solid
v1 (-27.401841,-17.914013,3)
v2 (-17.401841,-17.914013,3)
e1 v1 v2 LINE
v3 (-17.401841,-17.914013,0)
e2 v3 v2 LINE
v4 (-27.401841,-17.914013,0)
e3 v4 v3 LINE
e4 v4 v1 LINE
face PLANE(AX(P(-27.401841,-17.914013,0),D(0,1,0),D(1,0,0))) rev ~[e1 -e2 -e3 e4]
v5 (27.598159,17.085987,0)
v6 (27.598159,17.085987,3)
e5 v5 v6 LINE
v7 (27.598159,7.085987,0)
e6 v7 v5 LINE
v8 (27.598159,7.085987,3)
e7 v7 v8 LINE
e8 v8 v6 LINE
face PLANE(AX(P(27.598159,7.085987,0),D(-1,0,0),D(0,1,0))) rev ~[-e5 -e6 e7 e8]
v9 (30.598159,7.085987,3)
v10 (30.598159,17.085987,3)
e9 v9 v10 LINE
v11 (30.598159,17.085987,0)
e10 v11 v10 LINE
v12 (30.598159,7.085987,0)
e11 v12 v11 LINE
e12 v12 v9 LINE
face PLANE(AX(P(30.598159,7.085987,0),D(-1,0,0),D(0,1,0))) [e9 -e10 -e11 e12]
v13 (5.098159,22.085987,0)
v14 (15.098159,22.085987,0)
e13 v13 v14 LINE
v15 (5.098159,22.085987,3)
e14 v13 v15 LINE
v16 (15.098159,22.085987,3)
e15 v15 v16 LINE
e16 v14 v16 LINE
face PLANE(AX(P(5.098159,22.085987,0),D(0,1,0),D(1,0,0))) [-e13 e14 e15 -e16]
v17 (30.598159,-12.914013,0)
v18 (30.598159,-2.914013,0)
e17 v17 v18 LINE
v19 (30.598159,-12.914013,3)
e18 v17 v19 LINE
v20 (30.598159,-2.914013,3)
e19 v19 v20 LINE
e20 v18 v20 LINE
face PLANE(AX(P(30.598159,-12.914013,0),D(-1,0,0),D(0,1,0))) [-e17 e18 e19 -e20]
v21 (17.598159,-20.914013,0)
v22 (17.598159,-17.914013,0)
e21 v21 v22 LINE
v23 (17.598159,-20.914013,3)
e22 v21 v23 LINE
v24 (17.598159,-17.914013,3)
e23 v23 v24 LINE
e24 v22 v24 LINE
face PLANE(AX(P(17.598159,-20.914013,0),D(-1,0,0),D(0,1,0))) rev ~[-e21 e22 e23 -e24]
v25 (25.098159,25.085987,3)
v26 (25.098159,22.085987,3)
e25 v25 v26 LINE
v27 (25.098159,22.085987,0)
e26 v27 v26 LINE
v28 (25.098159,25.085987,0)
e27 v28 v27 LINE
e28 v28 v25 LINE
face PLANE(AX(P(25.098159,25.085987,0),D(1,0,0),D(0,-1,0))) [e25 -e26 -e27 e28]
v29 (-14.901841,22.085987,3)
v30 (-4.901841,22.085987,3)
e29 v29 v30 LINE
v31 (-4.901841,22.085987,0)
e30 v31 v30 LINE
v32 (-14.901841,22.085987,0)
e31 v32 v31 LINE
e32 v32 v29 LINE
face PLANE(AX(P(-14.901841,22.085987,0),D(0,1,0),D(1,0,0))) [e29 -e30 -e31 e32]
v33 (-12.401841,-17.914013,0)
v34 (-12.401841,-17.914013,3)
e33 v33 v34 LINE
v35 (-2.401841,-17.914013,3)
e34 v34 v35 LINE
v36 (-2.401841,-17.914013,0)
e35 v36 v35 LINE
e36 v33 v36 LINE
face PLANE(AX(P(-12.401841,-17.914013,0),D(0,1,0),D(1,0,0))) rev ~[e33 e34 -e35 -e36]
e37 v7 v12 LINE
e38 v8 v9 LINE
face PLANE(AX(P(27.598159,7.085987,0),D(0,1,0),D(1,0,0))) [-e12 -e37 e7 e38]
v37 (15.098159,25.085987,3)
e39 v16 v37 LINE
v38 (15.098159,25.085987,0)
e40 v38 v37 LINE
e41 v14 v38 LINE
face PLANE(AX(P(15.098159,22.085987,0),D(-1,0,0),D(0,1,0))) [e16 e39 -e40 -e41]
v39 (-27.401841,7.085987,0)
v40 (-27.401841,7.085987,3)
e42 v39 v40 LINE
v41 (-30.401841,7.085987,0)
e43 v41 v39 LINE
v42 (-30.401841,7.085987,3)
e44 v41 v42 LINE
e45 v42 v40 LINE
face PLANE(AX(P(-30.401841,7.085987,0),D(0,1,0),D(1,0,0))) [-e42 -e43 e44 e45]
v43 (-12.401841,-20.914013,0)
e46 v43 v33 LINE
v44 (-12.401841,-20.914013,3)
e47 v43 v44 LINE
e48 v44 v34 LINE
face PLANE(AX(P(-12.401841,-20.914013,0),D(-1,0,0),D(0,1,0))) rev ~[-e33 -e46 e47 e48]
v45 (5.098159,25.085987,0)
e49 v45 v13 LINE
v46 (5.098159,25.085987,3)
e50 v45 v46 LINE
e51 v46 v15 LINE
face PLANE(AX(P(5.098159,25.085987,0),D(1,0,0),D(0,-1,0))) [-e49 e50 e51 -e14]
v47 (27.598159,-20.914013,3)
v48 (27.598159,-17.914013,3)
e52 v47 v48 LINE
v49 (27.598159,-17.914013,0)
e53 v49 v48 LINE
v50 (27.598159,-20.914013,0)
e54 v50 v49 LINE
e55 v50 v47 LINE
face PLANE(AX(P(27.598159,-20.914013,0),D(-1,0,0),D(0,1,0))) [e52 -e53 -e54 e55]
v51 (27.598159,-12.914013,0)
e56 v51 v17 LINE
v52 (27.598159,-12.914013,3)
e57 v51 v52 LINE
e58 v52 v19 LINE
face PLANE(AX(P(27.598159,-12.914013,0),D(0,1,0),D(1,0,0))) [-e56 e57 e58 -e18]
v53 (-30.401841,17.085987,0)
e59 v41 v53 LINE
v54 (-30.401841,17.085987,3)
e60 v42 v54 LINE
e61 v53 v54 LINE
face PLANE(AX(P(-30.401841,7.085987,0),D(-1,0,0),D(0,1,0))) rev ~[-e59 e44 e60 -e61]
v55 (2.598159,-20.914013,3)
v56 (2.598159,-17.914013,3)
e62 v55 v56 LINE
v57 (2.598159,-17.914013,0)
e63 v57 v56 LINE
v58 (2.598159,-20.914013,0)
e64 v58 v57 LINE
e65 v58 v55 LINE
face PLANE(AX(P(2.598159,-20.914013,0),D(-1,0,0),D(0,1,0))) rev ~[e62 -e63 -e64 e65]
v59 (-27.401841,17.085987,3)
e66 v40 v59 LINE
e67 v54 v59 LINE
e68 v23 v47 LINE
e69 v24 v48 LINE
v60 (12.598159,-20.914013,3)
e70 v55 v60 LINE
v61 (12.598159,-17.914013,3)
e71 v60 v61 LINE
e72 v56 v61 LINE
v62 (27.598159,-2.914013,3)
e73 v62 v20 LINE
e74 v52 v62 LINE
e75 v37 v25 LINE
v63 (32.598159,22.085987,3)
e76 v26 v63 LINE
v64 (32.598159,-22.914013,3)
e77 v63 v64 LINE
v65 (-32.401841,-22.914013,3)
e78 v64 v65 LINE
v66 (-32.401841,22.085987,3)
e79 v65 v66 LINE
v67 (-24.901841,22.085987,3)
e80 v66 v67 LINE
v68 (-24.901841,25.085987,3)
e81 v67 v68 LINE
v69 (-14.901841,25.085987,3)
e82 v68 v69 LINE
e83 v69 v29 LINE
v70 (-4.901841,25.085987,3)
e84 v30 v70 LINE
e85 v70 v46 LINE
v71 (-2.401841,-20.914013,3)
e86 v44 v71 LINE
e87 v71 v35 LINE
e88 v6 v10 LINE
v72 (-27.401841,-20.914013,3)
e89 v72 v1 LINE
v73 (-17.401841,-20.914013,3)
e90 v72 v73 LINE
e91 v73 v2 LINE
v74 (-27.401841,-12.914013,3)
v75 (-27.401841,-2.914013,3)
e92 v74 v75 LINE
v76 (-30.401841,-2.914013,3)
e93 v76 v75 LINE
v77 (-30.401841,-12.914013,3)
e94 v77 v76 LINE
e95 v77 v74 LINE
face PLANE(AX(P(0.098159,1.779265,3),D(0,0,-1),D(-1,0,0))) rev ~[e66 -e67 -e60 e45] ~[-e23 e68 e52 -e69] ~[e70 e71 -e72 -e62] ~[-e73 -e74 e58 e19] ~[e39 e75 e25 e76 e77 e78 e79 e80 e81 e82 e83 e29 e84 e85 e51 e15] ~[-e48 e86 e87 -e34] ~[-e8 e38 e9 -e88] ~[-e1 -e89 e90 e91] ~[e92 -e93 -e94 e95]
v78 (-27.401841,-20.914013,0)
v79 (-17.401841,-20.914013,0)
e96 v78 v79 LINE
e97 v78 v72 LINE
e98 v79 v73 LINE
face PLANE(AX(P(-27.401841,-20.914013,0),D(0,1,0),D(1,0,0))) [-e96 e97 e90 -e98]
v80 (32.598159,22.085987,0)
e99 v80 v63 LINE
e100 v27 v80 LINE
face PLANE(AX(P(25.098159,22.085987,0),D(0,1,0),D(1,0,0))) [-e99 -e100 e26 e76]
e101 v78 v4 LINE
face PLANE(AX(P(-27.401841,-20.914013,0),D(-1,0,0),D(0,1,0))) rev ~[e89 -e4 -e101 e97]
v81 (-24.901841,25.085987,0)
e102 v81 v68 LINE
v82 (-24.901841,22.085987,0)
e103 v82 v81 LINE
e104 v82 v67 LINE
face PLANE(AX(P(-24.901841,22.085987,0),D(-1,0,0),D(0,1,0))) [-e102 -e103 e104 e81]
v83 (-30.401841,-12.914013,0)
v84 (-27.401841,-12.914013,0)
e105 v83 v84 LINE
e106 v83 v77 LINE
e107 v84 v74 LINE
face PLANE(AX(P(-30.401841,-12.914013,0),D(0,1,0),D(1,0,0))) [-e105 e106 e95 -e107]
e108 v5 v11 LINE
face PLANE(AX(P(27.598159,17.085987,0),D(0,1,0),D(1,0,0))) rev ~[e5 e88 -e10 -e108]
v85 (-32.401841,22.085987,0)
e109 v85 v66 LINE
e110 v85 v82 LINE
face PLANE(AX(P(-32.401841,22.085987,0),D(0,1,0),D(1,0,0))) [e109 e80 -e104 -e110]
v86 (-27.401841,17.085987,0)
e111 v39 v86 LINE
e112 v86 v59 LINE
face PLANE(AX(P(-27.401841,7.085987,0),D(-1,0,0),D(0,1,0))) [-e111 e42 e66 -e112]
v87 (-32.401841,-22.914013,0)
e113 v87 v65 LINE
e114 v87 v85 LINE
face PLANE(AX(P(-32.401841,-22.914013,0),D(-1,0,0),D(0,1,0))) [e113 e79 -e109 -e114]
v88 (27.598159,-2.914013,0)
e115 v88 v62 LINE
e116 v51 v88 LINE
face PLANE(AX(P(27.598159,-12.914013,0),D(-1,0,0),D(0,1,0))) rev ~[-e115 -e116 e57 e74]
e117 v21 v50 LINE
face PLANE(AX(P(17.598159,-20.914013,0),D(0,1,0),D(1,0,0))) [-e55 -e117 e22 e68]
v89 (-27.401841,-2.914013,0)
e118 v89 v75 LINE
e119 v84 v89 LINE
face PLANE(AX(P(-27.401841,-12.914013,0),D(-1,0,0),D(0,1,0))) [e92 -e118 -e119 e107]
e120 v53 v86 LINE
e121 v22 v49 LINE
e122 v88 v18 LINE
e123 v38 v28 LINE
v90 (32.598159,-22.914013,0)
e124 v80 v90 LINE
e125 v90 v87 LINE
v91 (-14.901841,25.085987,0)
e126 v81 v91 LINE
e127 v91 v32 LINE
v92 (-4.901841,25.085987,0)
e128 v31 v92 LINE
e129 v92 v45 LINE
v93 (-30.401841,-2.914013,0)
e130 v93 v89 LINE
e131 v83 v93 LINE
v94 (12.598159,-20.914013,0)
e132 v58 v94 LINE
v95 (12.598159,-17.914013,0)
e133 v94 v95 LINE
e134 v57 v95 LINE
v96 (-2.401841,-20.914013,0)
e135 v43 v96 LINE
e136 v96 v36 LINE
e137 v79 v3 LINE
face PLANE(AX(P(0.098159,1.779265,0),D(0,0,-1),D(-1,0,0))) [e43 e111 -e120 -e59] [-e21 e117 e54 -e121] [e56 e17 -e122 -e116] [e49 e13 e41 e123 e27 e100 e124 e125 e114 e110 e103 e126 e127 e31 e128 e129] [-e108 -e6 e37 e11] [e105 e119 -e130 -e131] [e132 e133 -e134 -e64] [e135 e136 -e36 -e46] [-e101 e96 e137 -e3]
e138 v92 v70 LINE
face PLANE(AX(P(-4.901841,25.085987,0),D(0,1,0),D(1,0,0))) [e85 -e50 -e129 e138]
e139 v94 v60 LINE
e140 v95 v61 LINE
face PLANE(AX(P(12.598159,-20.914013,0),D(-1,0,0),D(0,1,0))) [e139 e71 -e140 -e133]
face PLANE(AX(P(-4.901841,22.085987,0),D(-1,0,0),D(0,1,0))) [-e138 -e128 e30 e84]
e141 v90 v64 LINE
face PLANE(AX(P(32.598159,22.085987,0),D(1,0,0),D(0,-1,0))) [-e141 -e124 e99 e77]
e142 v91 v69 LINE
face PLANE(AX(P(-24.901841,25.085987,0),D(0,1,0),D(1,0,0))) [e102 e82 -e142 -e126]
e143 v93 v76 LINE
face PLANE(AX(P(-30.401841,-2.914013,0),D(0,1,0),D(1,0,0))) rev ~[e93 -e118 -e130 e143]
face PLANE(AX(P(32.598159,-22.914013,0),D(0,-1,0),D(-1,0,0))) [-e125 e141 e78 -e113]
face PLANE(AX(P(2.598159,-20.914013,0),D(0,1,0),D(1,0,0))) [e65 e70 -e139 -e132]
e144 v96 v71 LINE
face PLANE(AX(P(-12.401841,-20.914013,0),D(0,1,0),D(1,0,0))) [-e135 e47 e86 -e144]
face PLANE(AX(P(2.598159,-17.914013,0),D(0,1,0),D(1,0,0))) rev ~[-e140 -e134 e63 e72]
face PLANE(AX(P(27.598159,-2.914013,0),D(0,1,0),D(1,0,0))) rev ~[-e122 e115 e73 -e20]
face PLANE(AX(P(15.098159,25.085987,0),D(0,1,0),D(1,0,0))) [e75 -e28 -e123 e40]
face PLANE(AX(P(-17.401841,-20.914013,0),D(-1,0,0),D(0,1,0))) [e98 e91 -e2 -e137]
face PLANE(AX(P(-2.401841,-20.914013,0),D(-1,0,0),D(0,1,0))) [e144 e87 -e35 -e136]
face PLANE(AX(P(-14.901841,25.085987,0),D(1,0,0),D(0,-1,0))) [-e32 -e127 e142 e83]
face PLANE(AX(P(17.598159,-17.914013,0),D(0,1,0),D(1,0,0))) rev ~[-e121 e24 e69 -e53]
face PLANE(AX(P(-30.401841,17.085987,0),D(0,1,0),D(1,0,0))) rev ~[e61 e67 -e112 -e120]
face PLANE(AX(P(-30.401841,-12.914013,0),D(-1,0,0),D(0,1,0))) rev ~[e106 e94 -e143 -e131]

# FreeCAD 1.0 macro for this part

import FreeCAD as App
import Part
import Sketcher
from FreeCAD import Vector
Q = App.Units.Quantity


def add_polygon(sketch, points):
    """Adds a closed chain of lines whose ends are joined by coincident constraints."""
    first, n = sketch.GeometryCount, len(points)
    for a, b in zip(points, points[1:] + points[:1]):
        sketch.addGeometry(Part.LineSegment(App.Vector(*a, 0), App.Vector(*b, 0)), False)
    for i in range(n):
        sketch.addConstraint(Sketcher.Constraint("Coincident", first + i, 2, first + (i + 1) % n, 1))

doc = App.newDocument("Part")
body = doc.addObject("PartDesign::Body", "Body")

# Sketch on XY plane
sketch1 = doc.addObject("Sketcher::SketchObject", "Sketch")
body.addObject(sketch1)
sketch1.AttachmentSupport = (doc.XY_Plane, [""])
sketch1.MapMode = "FlatFace"
add_polygon(sketch1, [(-4.9, 25.1), (-4.9, 22.1), (-14.9, 22.1), (-14.9, 25.1), (-24.9, 25.1), (-24.9, 22.1), (-32.4, 22.1), (-32.4, -22.9), (32.6, -22.9), (32.6, 22.1), (25.1, 22.1), (25.1, 25.1), (15.1, 25.1), (15.1, 22.1), (5.1, 22.1), (5.1, 25.1)])  # lines 0-15
add_polygon(sketch1, [(17.6, -20.9), (17.6, -17.9), (27.6, -17.9), (27.6, -20.9)])  # lines 16-19
add_polygon(sketch1, [(2.6, -20.9), (2.6, -17.9), (12.6, -17.9), (12.6, -20.9)])  # lines 20-23
add_polygon(sketch1, [(27.6, -12.9), (27.6, -2.9), (30.6, -2.9), (30.6, -12.9)])  # lines 24-27
add_polygon(sketch1, [(-12.4, -20.9), (-12.4, -17.9), (-2.4, -17.9), (-2.4, -20.9)])  # lines 28-31
add_polygon(sketch1, [(-27.4, -20.9), (-27.4, -17.9), (-17.4, -17.9), (-17.4, -20.9)])  # lines 32-35
add_polygon(sketch1, [(-30.4, -12.9), (-30.4, -2.9), (-27.4, -2.9), (-27.4, -12.9)])  # lines 36-39
add_polygon(sketch1, [(27.6, 7.1), (27.6, 17.1), (30.6, 17.1), (30.6, 7.1)])  # lines 40-43
add_polygon(sketch1, [(-30.4, 7.1), (-30.4, 17.1), (-27.4, 17.1), (-27.4, 7.1)])  # lines 44-47
sketch1.addConstraint(Sketcher.Constraint("Vertical", 0))
sketch1.addConstraint(Sketcher.Constraint("Horizontal", 1))
sketch1.addConstraint(Sketcher.Constraint("Vertical", 2))
sketch1.addConstraint(Sketcher.Constraint("Horizontal", 3))
sketch1.addConstraint(Sketcher.Constraint("Vertical", 4))
sketch1.addConstraint(Sketcher.Constraint("Horizontal", 5))
sketch1.addConstraint(Sketcher.Constraint("Vertical", 6))
sketch1.addConstraint(Sketcher.Constraint("Horizontal", 7))
sketch1.addConstraint(Sketcher.Constraint("Vertical", 8))
sketch1.addConstraint(Sketcher.Constraint("Horizontal", 9))
sketch1.addConstraint(Sketcher.Constraint("Vertical", 10))
sketch1.addConstraint(Sketcher.Constraint("Horizontal", 11))
sketch1.addConstraint(Sketcher.Constraint("Vertical", 12))
sketch1.addConstraint(Sketcher.Constraint("Horizontal", 13))
sketch1.addConstraint(Sketcher.Constraint("Vertical", 14))
sketch1.addConstraint(Sketcher.Constraint("Horizontal", 15))
sketch1.addConstraint(Sketcher.Constraint("Vertical", 16))
sketch1.addConstraint(Sketcher.Constraint("Horizontal", 17))
sketch1.addConstraint(Sketcher.Constraint("Vertical", 18))
sketch1.addConstraint(Sketcher.Constraint("Horizontal", 19))
sketch1.addConstraint(Sketcher.Constraint("Vertical", 20))
sketch1.addConstraint(Sketcher.Constraint("Horizontal", 21))
sketch1.addConstraint(Sketcher.Constraint("Vertical", 22))
sketch1.addConstraint(Sketcher.Constraint("Horizontal", 23))
sketch1.addConstraint(Sketcher.Constraint("Vertical", 24))
sketch1.addConstraint(Sketcher.Constraint("Horizontal", 25))
sketch1.addConstraint(Sketcher.Constraint("Vertical", 26))
sketch1.addConstraint(Sketcher.Constraint("Horizontal", 27))
sketch1.addConstraint(Sketcher.Constraint("Vertical", 28))
sketch1.addConstraint(Sketcher.Constraint("Horizontal", 29))
sketch1.addConstraint(Sketcher.Constraint("Vertical", 30))
sketch1.addConstraint(Sketcher.Constraint("Horizontal", 31))
sketch1.addConstraint(Sketcher.Constraint("Vertical", 32))
sketch1.addConstraint(Sketcher.Constraint("Horizontal", 33))
sketch1.addConstraint(Sketcher.Constraint("Vertical", 34))
sketch1.addConstraint(Sketcher.Constraint("Horizontal", 35))
sketch1.addConstraint(Sketcher.Constraint("Vertical", 36))
sketch1.addConstraint(Sketcher.Constraint("Horizontal", 37))
sketch1.addConstraint(Sketcher.Constraint("Vertical", 38))
sketch1.addConstraint(Sketcher.Constraint("Horizontal", 39))
sketch1.addConstraint(Sketcher.Constraint("Vertical", 40))
sketch1.addConstraint(Sketcher.Constraint("Horizontal", 41))
sketch1.addConstraint(Sketcher.Constraint("Vertical", 42))
sketch1.addConstraint(Sketcher.Constraint("Horizontal", 43))
sketch1.addConstraint(Sketcher.Constraint("Vertical", 44))
sketch1.addConstraint(Sketcher.Constraint("Horizontal", 45))
sketch1.addConstraint(Sketcher.Constraint("Vertical", 46))
sketch1.addConstraint(Sketcher.Constraint("Horizontal", 47))
sketch1.addConstraint(Sketcher.Constraint("Horizontal", 1, 2, 4, 2))
sketch1.addConstraint(Sketcher.Constraint("Horizontal", 5, 2, 8, 2))
sketch1.addConstraint(Sketcher.Constraint("Horizontal", 3, 2, 10, 2))
sketch1.addConstraint(Sketcher.Constraint("Horizontal", 9, 2, 12, 2))
sketch1.addConstraint(Sketcher.Constraint("Horizontal", 11, 2, 14, 2))
sketch1.addConstraint(Sketcher.Constraint("Horizontal", 17, 2, 20, 2))
sketch1.addConstraint(Sketcher.Constraint("Horizontal", 19, 2, 22, 2))
sketch1.addConstraint(Sketcher.Constraint("Horizontal", 21, 2, 28, 2))
sketch1.addConstraint(Sketcher.Constraint("Horizontal", 23, 2, 30, 2))
sketch1.addConstraint(Sketcher.Constraint("Horizontal", 29, 2, 32, 2))
sketch1.addConstraint(Sketcher.Constraint("Horizontal", 31, 2, 34, 2))
sketch1.addConstraint(Sketcher.Constraint("Horizontal", 25, 2, 36, 2))
sketch1.addConstraint(Sketcher.Constraint("Horizontal", 27, 2, 38, 2))
sketch1.addConstraint(Sketcher.Constraint("Horizontal", 41, 2, 44, 2))
sketch1.addConstraint(Sketcher.Constraint("Horizontal", 43, 2, 46, 2))
sketch1.addConstraint(Sketcher.Constraint("Vertical", 18, 2, 24, 2))
sketch1.addConstraint(Sketcher.Constraint("Vertical", 35, 2, 37, 2))
sketch1.addConstraint(Sketcher.Constraint("Vertical", 27, 2, 40, 2))
sketch1.addConstraint(Sketcher.Constraint("Vertical", 26, 2, 41, 2))
sketch1.addConstraint(Sketcher.Constraint("Vertical", 39, 2, 44, 2))
sketch1.addConstraint(Sketcher.Constraint("Vertical", 38, 2, 45, 2))
sketch1.addConstraint(Sketcher.Constraint("Equal", 1, 3))
sketch1.addConstraint(Sketcher.Constraint("Equal", 5, 9))
sketch1.addConstraint(Sketcher.Constraint("Equal", 3, 11))
sketch1.addConstraint(Sketcher.Constraint("Equal", 11, 13))
sketch1.addConstraint(Sketcher.Constraint("Equal", 13, 15))
sketch1.addConstraint(Sketcher.Constraint("Equal", 15, 17))
sketch1.addConstraint(Sketcher.Constraint("Equal", 19, 21))
sketch1.addConstraint(Sketcher.Constraint("Equal", 23, 29))
sketch1.addConstraint(Sketcher.Constraint("Equal", 31, 33))
sketch1.addConstraint(Sketcher.Constraint("Equal", 27, 37))
sketch1.addConstraint(Sketcher.Constraint("Equal", 47, 0))
sketch1.addConstraint(Sketcher.Constraint("Equal", 14, 16))
sketch1.addConstraint(Sketcher.Constraint("Equal", 35, 24))
sketch1.addConstraint(Sketcher.Constraint("Equal", 38, 40))
sketch1.addConstraint(Sketcher.Constraint("DistanceX", 1, 2, 1, 1, Q("10 mm")))
sketch1.addConstraint(Sketcher.Constraint("DistanceX", 7, 1, 7, 2, Q("65 mm")))
sketch1.addConstraint(Sketcher.Constraint("DistanceX", 25, 1, 25, 2, Q("3 mm")))
sketch1.addConstraint(Sketcher.Constraint("DistanceY", 6, 2, 6, 1, Q("45 mm")))
sketch1.addConstraint(Sketcher.Constraint("DistanceX", 16, 2, 7, 2, Q("15 mm")))
sketch1.addConstraint(Sketcher.Constraint("DistanceY", 7, 2, 16, 2, Q("5 mm")))
sketch1.addConstraint(Sketcher.Constraint("DistanceX", 20, 2, 16, 2, Q("15 mm")))
sketch1.addConstraint(Sketcher.Constraint("DistanceY", 17, 2, 24, 2, Q("15 mm")))
sketch1.addConstraint(Sketcher.Constraint("DistanceX", 28, 2, 20, 2, Q("15 mm")))
sketch1.addConstraint(Sketcher.Constraint("DistanceX", 6, 2, 32, 2, Q("5 mm")))
sketch1.addConstraint(Sketcher.Constraint("DistanceY", 40, 2, 9, 2, Q("5 mm")))
sketch1.addConstraint(Sketcher.Constraint("DistanceX", 0, 2, -1, 1, Q("4.901841 mm")))
sketch1.addConstraint(Sketcher.Constraint("DistanceY", -1, 1, 0, 2, Q("22.085987 mm")))
pad1 = doc.addObject("PartDesign::Pad", "Pad")
body.addObject(pad1)
pad1.Profile = sketch1
pad1.Length = 3

doc.recompute()
